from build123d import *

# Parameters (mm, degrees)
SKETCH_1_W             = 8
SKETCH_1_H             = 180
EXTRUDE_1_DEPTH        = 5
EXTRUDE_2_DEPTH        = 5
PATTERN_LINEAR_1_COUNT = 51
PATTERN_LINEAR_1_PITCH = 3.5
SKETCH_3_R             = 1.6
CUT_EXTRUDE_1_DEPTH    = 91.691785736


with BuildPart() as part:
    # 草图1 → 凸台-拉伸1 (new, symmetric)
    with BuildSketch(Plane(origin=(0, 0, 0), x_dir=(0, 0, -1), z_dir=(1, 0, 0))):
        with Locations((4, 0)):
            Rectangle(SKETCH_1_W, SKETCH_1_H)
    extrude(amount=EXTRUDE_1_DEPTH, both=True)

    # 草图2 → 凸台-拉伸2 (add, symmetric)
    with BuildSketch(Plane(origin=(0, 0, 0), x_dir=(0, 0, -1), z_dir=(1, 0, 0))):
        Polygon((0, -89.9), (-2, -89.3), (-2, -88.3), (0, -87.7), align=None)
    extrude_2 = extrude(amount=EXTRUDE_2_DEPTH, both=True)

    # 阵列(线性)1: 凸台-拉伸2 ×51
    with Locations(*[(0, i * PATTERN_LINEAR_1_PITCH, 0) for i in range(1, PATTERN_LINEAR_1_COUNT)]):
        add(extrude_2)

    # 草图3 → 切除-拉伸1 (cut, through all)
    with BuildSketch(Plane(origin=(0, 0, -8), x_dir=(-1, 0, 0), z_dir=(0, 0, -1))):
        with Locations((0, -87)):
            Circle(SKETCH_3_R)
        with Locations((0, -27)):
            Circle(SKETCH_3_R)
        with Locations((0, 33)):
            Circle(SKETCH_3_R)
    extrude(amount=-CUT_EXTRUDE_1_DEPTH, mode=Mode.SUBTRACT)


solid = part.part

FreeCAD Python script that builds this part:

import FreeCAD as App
import Part
import Sketcher

doc = App.newDocument("Part")
params = doc.addObject("Spreadsheet::Sheet", "Params")
for row, (alias, value) in enumerate([
    ("sketch1_width", "180 mm"),
    ("sketch1_height", "8 mm"),
    ("pad1_length", "10 mm"),
    ("sketch2_width", "1 mm"),
    ("sketch2_width2", "2.2 mm"),
    ("pad2_length", "10 mm"),
    ("linearpattern_pitch", "3.5 mm"),
    ("sketch3_diameter", "3.2 mm"),
], start=1):
    params.set(f"A{row}", alias)
    params.set(f"B{row}", "=" + value)
    params.setAlias(f"B{row}", alias)

body = doc.addObject("PartDesign::Body", "Body")

# Sketch on YZ plane
sketch1 = doc.addObject("Sketcher::SketchObject", "Sketch")
body.addObject(sketch1)
sketch1.AttachmentSupport = (doc.YZ_Plane, [""])
sketch1.MapMode = "FlatFace"
sketch1.addGeometry([
    Part.LineSegment(App.Vector(90, 0, 0), App.Vector(-90, 0, 0)),
    Part.LineSegment(App.Vector(-90, 0, 0), App.Vector(-90, -8, 0)),
    Part.LineSegment(App.Vector(-90, -8, 0), App.Vector(90, -8, 0)),
    Part.LineSegment(App.Vector(90, -8, 0), App.Vector(90, 0, 0)),
], False)
sketch1.addConstraint([
    Sketcher.Constraint("Coincident", 0, 2, 1, 1),
    Sketcher.Constraint("Coincident", 1, 2, 2, 1),
    Sketcher.Constraint("Coincident", 2, 2, 3, 1),
    Sketcher.Constraint("Coincident", 3, 2, 0, 1),
    Sketcher.Constraint("Horizontal", 0),
    Sketcher.Constraint("Vertical", 1),
    Sketcher.Constraint("Horizontal", 2),
    Sketcher.Constraint("Vertical", 3),
    Sketcher.Constraint("Symmetric", 0, 2, 3, 2, -1, 1),
    Sketcher.Constraint("DistanceX", 0, 2, 0, 1, 180.0),
    Sketcher.Constraint("DistanceY", 1, 2, 1, 1, 8.0),
])
sketch1.setExpression("Constraints[9]", "Params.sketch1_width")
sketch1.setExpression("Constraints[10]", "Params.sketch1_height")
pad1 = doc.addObject("PartDesign::Pad", "Pad")
body.addObject(pad1)
pad1.Profile = sketch1
pad1.setExpression("Length", "Params.pad1_length")
pad1.Midplane = True

# Sketch on YZ plane
sketch2 = doc.addObject("Sketcher::SketchObject", "Sketch001")
body.addObject(sketch2)
sketch2.AttachmentSupport = (doc.YZ_Plane, [""])
sketch2.MapMode = "FlatFace"
sketch2.addGeometry([
    Part.LineSegment(App.Vector(-89.3, 2, 0), App.Vector(-89.9, 0, 0)),
    Part.LineSegment(App.Vector(-89.9, 0, 0), App.Vector(-87.7, 0, 0)),
    Part.LineSegment(App.Vector(-87.7, 0, 0), App.Vector(-88.3, 2, 0)),
    Part.LineSegment(App.Vector(-88.3, 2, 0), App.Vector(-89.3, 2, 0)),
], False)
sketch2.addConstraint([
    Sketcher.Constraint("Coincident", 0, 2, 1, 1),
    Sketcher.Constraint("Coincident", 1, 2, 2, 1),
    Sketcher.Constraint("Coincident", 2, 2, 3, 1),
    Sketcher.Constraint("Coincident", 3, 2, 0, 1),
    Sketcher.Constraint("Horizontal", 1),
    Sketcher.Constraint("Horizontal", 3),
    Sketcher.Constraint("PointOnObject", 0, 2, -1),
    Sketcher.Constraint("Equal", 0, 2),
    Sketcher.Constraint("DistanceX", 3, 2, 3, 1, 1.0),
    Sketcher.Constraint("DistanceX", 1, 1, 1, 2, 2.2),
    Sketcher.Constraint("DistanceY", -1, 1, 2, 2, 2.0),
    Sketcher.Constraint("DistanceX", 0, 2, -1, 1, 89.9),
])
sketch2.setExpression("Constraints[8]", "Params.sketch2_width")
sketch2.setExpression("Constraints[9]", "Params.sketch2_width2")
pad2 = doc.addObject("PartDesign::Pad", "Pad001")
body.addObject(pad2)
pad2.Profile = sketch2
pad2.setExpression("Length", "Params.pad2_length")
pad2.Midplane = True
doc.recompute()

linearpattern = doc.addObject("PartDesign::LinearPattern", "LinearPattern")
body.addObject(linearpattern)
linearpattern.Originals = [pad2]
linearpattern.Direction = (doc.Y_Axis, [""])
linearpattern.Mode = "offset"
linearpattern.setExpression("Offset", "Params.linearpattern_pitch")
linearpattern.Occurrences = 51
body.Tip = linearpattern

# Sketch on XY plane
sketch3 = doc.addObject("Sketcher::SketchObject", "Sketch002")
body.addObject(sketch3)
sketch3.AttachmentSupport = (doc.XY_Plane, [""])
sketch3.MapMode = "FlatFace"
sketch3.AttachmentOffset = App.Placement(App.Vector(0, 0, -8), App.Rotation())
sketch3.addGeometry([
    Part.Circle(App.Vector(0, -87, 0), App.Vector(0, 0, 1), 1.6),
    Part.Circle(App.Vector(0, -27, 0), App.Vector(0, 0, 1), 1.6),
    Part.Circle(App.Vector(0, 33, 0), App.Vector(0, 0, 1), 1.6),
], False)
sketch3.addConstraint([
    Sketcher.Constraint("Equal", 0, 1),
    Sketcher.Constraint("Equal", 1, 2),
    Sketcher.Constraint("PointOnObject", 0, 3, -2),
    Sketcher.Constraint("PointOnObject", 1, 3, -2),
    Sketcher.Constraint("PointOnObject", 2, 3, -2),
    Sketcher.Constraint("Diameter", 0, 3.2),
    Sketcher.Constraint("DistanceY", 0, 3, -1, 1, 87.0),
    Sketcher.Constraint("DistanceY", 1, 3, -1, 1, 27.0),
    Sketcher.Constraint("DistanceY", -1, 1, 2, 3, 33.0),
])
sketch3.setExpression("Constraints[5]", "Params.sketch3_diameter")
pocket1 = doc.addObject("PartDesign::Pocket", "Pocket")
body.addObject(pocket1)
pocket1.Profile = sketch3
pocket1.Type = "ThroughAll"
pocket1.Reversed = True

doc.recompute()
